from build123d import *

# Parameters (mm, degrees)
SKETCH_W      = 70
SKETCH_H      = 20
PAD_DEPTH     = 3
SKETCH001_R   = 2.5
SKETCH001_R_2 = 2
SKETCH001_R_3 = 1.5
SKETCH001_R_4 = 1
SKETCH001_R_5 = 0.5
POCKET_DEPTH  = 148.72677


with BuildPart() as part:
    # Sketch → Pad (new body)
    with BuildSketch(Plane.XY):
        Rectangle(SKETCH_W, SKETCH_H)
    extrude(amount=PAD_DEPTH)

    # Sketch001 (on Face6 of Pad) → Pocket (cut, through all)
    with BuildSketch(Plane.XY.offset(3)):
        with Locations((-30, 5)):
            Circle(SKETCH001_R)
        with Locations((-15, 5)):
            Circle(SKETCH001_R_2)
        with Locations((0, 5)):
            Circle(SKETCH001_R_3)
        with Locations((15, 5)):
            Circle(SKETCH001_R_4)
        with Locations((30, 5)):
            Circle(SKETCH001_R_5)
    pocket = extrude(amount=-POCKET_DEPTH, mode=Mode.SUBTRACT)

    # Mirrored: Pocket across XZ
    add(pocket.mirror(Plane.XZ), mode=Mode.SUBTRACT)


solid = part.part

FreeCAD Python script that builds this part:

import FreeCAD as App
import Part
import Sketcher


def add_polygon(sketch, points):
    """Adds a closed chain of lines whose ends are joined by coincident constraints."""
    first, n = sketch.GeometryCount, len(points)
    for a, b in zip(points, points[1:] + points[:1]):
        sketch.addGeometry(Part.LineSegment(App.Vector(*a, 0), App.Vector(*b, 0)), False)
    for i in range(n):
        sketch.addConstraint(Sketcher.Constraint("Coincident", first + i, 2, first + (i + 1) % n, 1))

doc = App.newDocument("Part")
params = doc.addObject("Spreadsheet::Sheet", "Params")
for row, (alias, value) in enumerate([
    ("sketch1_width", "70 mm"),
    ("sketch1_height", "20 mm"),
    ("pad1_length", "3 mm"),
    ("sketch2_diameter", "5 mm"),
    ("sketch2_diameter2", "4 mm"),
    ("sketch2_diameter3", "3 mm"),
    ("sketch2_diameter4", "2 mm"),
    ("sketch2_diameter5", "1 mm"),
], start=1):
    params.set(f"A{row}", alias)
    params.set(f"B{row}", "=" + value)
    params.setAlias(f"B{row}", alias)

body = doc.addObject("PartDesign::Body", "Body")

sketch1 = body.newObject("Sketcher::SketchObject", "Sketch")
sketch1.AttachmentSupport = (doc.getObject("XY_Plane"), [""])
sketch1.MapMode = "FlatFace"
add_polygon(sketch1, [(-35, 10), (-35, -10), (35, -10), (35, 10)])
sketch1.addConstraint([
    Sketcher.Constraint("Vertical", 0),
    Sketcher.Constraint("Horizontal", 1),
    Sketcher.Constraint("Vertical", 2),
    Sketcher.Constraint("Horizontal", 3),
    Sketcher.Constraint("Symmetric", 0, 2, 2, 2, -1, 1),
    Sketcher.Constraint("DistanceX", 1, 1, 1, 2, 70.0),
    Sketcher.Constraint("DistanceY", 0, 2, 0, 1, 20.0),
])
sketch1.setExpression("Constraints[9]", "Params.sketch1_width")
sketch1.setExpression("Constraints[10]", "Params.sketch1_height")
pad1 = body.newObject("PartDesign::Pad", "Pad")
pad1.Profile = sketch1
pad1.setExpression("Length", "Params.pad1_length")

sketch2 = body.newObject("Sketcher::SketchObject", "Sketch001")
sketch2.AttachmentSupport = (doc.getObject("XY_Plane"), [""])
sketch2.MapMode = "FlatFace"
sketch2.AttachmentOffset = App.Placement(App.Vector(0, 0, 3), App.Rotation())
sketch2.addGeometry([
    Part.Circle(App.Vector(-30, 5, 0), App.Vector(0, 0, 1), 2.5),
    Part.Circle(App.Vector(-15, 5, 0), App.Vector(0, 0, 1), 2),
    Part.Circle(App.Vector(0, 5, 0), App.Vector(0, 0, 1), 1.5),
    Part.Circle(App.Vector(15, 5, 0), App.Vector(0, 0, 1), 1),
    Part.Circle(App.Vector(30, 5, 0), App.Vector(0, 0, 1), 0.5),
], False)
sketch2.addConstraint([
    Sketcher.Constraint("Symmetric", 1, 3, 3, 3, -2),
    Sketcher.Constraint("Symmetric", 0, 3, 4, 3, -2),
    Sketcher.Constraint("PointOnObject", 2, 3, -2),
    Sketcher.Constraint("Horizontal", 0, 3, 1, 3),
    Sketcher.Constraint("Horizontal", 1, 3, 2, 3),
    Sketcher.Constraint("Diameter", 0, 5.0),
    Sketcher.Constraint("Diameter", 1, 4.0),
    Sketcher.Constraint("Diameter", 2, 3.0),
    Sketcher.Constraint("Diameter", 3, 2.0),
    Sketcher.Constraint("Diameter", 4, 1.0),
    Sketcher.Constraint("DistanceX", 0, 3, -1, 1, 30.0),
    Sketcher.Constraint("DistanceY", -1, 1, 0, 3, 5.0),
    Sketcher.Constraint("DistanceX", 1, 3, -1, 1, 15.0),
])
sketch2.setExpression("Constraints[5]", "Params.sketch2_diameter")
sketch2.setExpression("Constraints[6]", "Params.sketch2_diameter2")
sketch2.setExpression("Constraints[7]", "Params.sketch2_diameter3")
sketch2.setExpression("Constraints[8]", "Params.sketch2_diameter4")
sketch2.setExpression("Constraints[9]", "Params.sketch2_diameter5")
pocket1 = body.newObject("PartDesign::Pocket", "Pocket")
pocket1.Profile = sketch2
pocket1.Type = "ThroughAll"
doc.recompute()

mirrored = body.newObject("PartDesign::Mirrored", "Mirrored")
mirrored.Originals = [pocket1]
mirrored.MirrorPlane = (doc.getObject("XZ_Plane"), [""])
body.Tip = mirrored

doc.recompute()
